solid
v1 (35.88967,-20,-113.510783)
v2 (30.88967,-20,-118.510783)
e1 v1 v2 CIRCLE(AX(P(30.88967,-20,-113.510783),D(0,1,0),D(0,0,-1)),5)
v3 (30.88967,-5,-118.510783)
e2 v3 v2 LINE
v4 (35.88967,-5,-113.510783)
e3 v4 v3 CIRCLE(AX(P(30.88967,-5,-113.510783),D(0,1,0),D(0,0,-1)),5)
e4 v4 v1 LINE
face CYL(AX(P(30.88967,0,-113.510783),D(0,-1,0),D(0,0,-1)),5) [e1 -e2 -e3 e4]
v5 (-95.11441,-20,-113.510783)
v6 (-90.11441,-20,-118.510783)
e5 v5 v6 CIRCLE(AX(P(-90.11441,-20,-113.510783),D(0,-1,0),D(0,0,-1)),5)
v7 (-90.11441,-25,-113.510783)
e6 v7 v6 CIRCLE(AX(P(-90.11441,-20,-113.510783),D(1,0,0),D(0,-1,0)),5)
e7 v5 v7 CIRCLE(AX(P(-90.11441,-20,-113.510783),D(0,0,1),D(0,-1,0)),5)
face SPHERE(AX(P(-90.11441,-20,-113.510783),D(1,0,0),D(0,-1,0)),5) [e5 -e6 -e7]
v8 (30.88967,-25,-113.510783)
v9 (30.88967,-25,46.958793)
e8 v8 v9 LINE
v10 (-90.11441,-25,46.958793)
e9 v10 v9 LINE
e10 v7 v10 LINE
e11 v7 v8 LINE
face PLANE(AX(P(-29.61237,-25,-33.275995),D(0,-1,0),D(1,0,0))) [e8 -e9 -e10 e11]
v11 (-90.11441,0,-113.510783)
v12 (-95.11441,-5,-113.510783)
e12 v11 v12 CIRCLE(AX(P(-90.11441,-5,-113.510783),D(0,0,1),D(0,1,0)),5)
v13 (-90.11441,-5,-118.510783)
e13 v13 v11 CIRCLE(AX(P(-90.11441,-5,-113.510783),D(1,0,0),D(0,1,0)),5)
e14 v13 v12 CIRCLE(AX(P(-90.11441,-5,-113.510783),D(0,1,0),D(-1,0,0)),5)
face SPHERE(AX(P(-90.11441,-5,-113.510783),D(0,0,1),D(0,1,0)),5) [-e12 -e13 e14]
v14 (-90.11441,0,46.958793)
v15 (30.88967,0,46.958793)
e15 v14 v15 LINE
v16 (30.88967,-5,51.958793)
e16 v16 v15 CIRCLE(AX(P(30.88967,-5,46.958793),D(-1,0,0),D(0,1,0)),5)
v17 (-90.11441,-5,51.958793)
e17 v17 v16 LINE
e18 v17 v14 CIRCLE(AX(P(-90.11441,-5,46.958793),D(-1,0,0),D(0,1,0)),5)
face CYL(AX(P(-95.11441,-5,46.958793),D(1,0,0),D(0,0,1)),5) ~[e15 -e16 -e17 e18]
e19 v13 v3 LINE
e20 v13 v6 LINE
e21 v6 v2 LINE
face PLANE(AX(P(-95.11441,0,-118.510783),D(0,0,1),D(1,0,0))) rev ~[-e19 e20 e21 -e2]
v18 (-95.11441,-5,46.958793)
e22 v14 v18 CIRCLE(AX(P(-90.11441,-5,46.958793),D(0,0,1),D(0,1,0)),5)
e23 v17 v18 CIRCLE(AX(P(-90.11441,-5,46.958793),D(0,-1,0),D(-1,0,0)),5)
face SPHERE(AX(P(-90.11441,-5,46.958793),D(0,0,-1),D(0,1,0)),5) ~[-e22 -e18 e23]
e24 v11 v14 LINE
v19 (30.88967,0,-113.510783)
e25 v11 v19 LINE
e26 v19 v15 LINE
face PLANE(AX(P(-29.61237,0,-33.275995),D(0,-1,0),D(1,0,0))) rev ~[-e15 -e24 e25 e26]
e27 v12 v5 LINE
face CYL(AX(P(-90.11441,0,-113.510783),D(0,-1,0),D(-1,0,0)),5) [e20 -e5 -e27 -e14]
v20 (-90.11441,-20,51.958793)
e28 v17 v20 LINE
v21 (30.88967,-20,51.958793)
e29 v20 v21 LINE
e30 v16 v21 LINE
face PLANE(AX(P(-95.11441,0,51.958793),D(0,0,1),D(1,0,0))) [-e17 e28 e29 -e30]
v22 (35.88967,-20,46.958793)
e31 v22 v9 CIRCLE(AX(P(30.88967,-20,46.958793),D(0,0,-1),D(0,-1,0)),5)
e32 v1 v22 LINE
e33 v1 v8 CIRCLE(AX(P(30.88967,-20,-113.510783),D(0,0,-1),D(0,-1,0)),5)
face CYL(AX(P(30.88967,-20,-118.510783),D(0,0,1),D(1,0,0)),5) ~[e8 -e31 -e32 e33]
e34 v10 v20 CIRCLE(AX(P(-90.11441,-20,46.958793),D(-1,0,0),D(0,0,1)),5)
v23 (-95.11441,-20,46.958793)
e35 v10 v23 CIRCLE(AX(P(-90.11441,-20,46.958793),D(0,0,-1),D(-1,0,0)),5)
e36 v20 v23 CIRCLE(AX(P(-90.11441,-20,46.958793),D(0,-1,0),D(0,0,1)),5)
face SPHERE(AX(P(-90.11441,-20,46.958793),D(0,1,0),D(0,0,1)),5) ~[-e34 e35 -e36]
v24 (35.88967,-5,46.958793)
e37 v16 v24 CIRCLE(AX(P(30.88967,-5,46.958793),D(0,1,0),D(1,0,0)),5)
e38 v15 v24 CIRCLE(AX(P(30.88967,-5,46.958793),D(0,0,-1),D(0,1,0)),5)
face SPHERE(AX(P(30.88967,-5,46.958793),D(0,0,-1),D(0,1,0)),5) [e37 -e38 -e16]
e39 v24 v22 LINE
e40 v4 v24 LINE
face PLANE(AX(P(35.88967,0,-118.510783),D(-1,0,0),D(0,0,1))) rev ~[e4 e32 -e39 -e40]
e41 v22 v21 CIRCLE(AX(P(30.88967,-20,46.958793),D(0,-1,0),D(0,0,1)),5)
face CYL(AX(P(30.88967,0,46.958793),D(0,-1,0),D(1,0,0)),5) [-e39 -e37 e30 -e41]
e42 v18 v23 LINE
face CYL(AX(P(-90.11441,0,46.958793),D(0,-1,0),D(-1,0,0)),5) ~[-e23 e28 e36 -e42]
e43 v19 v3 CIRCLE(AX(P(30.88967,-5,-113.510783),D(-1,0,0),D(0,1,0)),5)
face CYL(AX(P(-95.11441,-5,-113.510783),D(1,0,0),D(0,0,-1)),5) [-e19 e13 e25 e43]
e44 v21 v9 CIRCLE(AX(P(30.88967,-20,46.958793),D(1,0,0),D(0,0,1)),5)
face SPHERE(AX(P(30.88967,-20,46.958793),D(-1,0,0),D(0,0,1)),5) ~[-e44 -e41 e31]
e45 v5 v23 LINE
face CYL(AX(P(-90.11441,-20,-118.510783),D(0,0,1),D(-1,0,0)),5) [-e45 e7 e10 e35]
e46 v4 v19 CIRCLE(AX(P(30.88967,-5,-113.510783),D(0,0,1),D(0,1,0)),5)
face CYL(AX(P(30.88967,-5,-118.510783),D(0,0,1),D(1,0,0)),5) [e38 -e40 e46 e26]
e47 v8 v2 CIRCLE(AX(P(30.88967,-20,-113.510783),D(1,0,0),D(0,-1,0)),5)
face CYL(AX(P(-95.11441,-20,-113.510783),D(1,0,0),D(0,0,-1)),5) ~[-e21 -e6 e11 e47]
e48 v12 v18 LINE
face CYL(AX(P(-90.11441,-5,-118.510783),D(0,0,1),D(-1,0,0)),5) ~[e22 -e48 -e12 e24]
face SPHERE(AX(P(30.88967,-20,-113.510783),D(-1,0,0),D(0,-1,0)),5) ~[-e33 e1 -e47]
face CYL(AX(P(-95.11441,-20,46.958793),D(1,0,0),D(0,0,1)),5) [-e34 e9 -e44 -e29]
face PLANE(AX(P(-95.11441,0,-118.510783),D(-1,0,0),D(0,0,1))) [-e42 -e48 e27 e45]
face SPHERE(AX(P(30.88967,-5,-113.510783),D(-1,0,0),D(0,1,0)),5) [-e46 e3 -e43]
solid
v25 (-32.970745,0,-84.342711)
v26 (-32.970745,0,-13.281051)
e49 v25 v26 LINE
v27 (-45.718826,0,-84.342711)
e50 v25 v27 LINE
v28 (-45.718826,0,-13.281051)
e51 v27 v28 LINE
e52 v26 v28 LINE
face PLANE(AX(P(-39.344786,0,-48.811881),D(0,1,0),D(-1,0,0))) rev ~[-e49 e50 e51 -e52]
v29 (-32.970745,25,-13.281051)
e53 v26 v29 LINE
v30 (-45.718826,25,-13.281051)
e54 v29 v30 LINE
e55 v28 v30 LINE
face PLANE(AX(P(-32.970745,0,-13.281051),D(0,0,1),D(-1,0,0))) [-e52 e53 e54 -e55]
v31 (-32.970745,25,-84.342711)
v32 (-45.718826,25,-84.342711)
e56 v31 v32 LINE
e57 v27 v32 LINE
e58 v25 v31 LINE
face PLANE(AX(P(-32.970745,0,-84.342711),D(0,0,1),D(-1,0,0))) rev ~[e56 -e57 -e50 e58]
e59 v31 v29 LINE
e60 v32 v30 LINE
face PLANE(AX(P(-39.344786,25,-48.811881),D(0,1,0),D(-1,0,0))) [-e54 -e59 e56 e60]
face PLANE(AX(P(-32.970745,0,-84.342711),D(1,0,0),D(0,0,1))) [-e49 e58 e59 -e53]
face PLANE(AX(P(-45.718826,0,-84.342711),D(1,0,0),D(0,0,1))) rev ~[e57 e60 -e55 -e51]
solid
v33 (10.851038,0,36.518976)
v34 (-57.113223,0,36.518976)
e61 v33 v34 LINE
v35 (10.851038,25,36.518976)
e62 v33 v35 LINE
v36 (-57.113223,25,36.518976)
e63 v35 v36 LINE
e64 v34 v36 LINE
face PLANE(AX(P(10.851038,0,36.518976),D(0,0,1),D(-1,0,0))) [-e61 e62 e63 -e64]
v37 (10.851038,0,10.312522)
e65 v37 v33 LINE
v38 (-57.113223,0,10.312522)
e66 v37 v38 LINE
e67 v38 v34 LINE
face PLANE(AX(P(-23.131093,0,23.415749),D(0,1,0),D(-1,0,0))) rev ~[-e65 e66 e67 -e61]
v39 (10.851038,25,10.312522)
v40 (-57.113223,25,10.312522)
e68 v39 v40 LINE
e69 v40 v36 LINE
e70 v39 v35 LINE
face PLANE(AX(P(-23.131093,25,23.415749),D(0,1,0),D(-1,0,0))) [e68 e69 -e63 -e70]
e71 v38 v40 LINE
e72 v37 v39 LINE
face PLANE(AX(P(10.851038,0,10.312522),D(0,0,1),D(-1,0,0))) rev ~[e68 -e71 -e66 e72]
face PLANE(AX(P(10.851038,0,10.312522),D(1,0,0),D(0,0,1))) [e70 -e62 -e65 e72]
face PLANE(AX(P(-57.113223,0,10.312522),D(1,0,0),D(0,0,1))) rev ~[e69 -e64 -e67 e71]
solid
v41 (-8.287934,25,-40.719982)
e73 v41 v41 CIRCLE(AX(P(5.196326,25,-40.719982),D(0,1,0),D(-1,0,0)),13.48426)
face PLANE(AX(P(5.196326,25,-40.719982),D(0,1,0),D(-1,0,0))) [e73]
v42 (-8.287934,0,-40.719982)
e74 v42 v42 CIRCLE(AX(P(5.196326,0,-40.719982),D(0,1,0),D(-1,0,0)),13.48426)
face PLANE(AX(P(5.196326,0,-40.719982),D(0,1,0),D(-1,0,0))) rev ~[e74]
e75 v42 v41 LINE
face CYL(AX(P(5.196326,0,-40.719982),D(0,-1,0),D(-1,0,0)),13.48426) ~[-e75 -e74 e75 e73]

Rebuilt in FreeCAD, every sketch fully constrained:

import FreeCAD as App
import Part
import Sketcher
Q = App.Units.Quantity


def add_polygon(sketch, points):
    """Adds a closed chain of lines whose ends are joined by coincident constraints."""
    first, n = sketch.GeometryCount, len(points)
    for a, b in zip(points, points[1:] + points[:1]):
        sketch.addGeometry(Part.LineSegment(App.Vector(*a, 0), App.Vector(*b, 0)), False)
    for i in range(n):
        sketch.addConstraint(Sketcher.Constraint("Coincident", first + i, 2, first + (i + 1) % n, 1))

doc = App.newDocument("Part")
params = doc.addObject("Spreadsheet::Sheet", "Params")
for row, (alias, value) in enumerate([
    ("pad1_length", "25 mm"),
    ("fillet_radius", "5 mm"),
    ("pad2_length", "25 mm"),
], start=1):
    params.set(f"A{row}", alias)
    params.set(f"B{row}", "=" + value)
    params.setAlias(f"B{row}", alias)

body = doc.addObject("PartDesign::Body", "Body")

# Sketch on XZ plane
sketch1 = body.newObject("Sketcher::SketchObject", "Sketch")
sketch1.AttachmentSupport = (doc.getObject("XZ_Plane"), [""])
sketch1.MapMode = "FlatFace"
add_polygon(sketch1, [(-95, 52), (-95, -119), (36, -119), (36, 52)])  # lines 0-3
sketch1.addConstraint([
    Sketcher.Constraint("Vertical", 0),
    Sketcher.Constraint("Horizontal", 1),
    Sketcher.Constraint("Vertical", 2),
    Sketcher.Constraint("Horizontal", 3),
    Sketcher.Constraint("DistanceX", 1, 1, 1, 2, Q("131.00408 mm")),
    Sketcher.Constraint("DistanceY", 0, 2, 0, 1, Q("170.469575 mm")),
    Sketcher.Constraint("DistanceX", 0, 2, -1, 1, Q("95.11441 mm")),
    Sketcher.Constraint("DistanceY", 0, 2, -1, 1, Q("118.510783 mm")),
])
pad1 = body.newObject("PartDesign::Pad", "Pad")
pad1.Profile = sketch1
pad1.setExpression("Length", "Params.pad1_length")
doc.recompute()

fillet = body.newObject("PartDesign::Fillet", "Fillet")
fillet.Base = (pad1, ["Edge1"])
fillet.UseAllEdges = True
fillet.setExpression("Radius", "Params.fillet_radius")
body2 = doc.addObject("PartDesign::Body", "Body001")
body2.AllowCompound = True

# Sketch on XZ plane
sketch2 = body2.newObject("Sketcher::SketchObject", "Sketch001")
sketch2.AttachmentSupport = (doc.getObject("XZ_Plane001"), [""])
sketch2.MapMode = "FlatFace"
add_polygon(sketch2, [(-33, -13), (-33, -84), (-46, -84), (-46, -13)])  # lines 0-3
add_polygon(sketch2, [(11, 37), (11, 10), (-57, 10), (-57, 37)])  # lines 4-7
sketch2.addGeometry(Part.Circle(App.Vector(5, -41, 0), App.Vector(0, 0, 1), 13), False)  # 8
sketch2.addConstraint([
    Sketcher.Constraint("Vertical", 0),
    Sketcher.Constraint("Horizontal", 1),
    Sketcher.Constraint("Vertical", 2),
    Sketcher.Constraint("Horizontal", 3),
    Sketcher.Constraint("Vertical", 4),
    Sketcher.Constraint("Horizontal", 5),
    Sketcher.Constraint("Vertical", 6),
    Sketcher.Constraint("Horizontal", 7),
    Sketcher.Constraint("Diameter", 8, Q("26.96852 mm")),
    Sketcher.Constraint("DistanceX", 1, 2, 1, 1, Q("12.748081 mm")),
    Sketcher.Constraint("DistanceX", 5, 2, 5, 1, Q("67.964261 mm")),
    Sketcher.Constraint("DistanceY", 0, 2, 0, 1, Q("71.06166 mm")),
    Sketcher.Constraint("DistanceY", 4, 2, 4, 1, Q("26.206454 mm")),
    Sketcher.Constraint("DistanceY", 0, 2, -1, 1, Q("84.342711 mm")),
    Sketcher.Constraint("DistanceX", 0, 2, 8, 3, Q("38.167071 mm")),
    Sketcher.Constraint("DistanceY", 0, 2, 8, 3, Q("43.622729 mm")),
    Sketcher.Constraint("DistanceX", 8, 3, 4, 2, Q("5.654712 mm")),
    Sketcher.Constraint("DistanceX", -1, 1, 8, 3, Q("5.196326 mm")),
    Sketcher.Constraint("DistanceY", -1, 1, 4, 2, Q("10.312522 mm")),
])
pad2 = body2.newObject("PartDesign::Pad", "Pad001")
pad2.Profile = sketch2
pad2.setExpression("Length", "Params.pad2_length")
pad2.Reversed = True

doc.recompute()
